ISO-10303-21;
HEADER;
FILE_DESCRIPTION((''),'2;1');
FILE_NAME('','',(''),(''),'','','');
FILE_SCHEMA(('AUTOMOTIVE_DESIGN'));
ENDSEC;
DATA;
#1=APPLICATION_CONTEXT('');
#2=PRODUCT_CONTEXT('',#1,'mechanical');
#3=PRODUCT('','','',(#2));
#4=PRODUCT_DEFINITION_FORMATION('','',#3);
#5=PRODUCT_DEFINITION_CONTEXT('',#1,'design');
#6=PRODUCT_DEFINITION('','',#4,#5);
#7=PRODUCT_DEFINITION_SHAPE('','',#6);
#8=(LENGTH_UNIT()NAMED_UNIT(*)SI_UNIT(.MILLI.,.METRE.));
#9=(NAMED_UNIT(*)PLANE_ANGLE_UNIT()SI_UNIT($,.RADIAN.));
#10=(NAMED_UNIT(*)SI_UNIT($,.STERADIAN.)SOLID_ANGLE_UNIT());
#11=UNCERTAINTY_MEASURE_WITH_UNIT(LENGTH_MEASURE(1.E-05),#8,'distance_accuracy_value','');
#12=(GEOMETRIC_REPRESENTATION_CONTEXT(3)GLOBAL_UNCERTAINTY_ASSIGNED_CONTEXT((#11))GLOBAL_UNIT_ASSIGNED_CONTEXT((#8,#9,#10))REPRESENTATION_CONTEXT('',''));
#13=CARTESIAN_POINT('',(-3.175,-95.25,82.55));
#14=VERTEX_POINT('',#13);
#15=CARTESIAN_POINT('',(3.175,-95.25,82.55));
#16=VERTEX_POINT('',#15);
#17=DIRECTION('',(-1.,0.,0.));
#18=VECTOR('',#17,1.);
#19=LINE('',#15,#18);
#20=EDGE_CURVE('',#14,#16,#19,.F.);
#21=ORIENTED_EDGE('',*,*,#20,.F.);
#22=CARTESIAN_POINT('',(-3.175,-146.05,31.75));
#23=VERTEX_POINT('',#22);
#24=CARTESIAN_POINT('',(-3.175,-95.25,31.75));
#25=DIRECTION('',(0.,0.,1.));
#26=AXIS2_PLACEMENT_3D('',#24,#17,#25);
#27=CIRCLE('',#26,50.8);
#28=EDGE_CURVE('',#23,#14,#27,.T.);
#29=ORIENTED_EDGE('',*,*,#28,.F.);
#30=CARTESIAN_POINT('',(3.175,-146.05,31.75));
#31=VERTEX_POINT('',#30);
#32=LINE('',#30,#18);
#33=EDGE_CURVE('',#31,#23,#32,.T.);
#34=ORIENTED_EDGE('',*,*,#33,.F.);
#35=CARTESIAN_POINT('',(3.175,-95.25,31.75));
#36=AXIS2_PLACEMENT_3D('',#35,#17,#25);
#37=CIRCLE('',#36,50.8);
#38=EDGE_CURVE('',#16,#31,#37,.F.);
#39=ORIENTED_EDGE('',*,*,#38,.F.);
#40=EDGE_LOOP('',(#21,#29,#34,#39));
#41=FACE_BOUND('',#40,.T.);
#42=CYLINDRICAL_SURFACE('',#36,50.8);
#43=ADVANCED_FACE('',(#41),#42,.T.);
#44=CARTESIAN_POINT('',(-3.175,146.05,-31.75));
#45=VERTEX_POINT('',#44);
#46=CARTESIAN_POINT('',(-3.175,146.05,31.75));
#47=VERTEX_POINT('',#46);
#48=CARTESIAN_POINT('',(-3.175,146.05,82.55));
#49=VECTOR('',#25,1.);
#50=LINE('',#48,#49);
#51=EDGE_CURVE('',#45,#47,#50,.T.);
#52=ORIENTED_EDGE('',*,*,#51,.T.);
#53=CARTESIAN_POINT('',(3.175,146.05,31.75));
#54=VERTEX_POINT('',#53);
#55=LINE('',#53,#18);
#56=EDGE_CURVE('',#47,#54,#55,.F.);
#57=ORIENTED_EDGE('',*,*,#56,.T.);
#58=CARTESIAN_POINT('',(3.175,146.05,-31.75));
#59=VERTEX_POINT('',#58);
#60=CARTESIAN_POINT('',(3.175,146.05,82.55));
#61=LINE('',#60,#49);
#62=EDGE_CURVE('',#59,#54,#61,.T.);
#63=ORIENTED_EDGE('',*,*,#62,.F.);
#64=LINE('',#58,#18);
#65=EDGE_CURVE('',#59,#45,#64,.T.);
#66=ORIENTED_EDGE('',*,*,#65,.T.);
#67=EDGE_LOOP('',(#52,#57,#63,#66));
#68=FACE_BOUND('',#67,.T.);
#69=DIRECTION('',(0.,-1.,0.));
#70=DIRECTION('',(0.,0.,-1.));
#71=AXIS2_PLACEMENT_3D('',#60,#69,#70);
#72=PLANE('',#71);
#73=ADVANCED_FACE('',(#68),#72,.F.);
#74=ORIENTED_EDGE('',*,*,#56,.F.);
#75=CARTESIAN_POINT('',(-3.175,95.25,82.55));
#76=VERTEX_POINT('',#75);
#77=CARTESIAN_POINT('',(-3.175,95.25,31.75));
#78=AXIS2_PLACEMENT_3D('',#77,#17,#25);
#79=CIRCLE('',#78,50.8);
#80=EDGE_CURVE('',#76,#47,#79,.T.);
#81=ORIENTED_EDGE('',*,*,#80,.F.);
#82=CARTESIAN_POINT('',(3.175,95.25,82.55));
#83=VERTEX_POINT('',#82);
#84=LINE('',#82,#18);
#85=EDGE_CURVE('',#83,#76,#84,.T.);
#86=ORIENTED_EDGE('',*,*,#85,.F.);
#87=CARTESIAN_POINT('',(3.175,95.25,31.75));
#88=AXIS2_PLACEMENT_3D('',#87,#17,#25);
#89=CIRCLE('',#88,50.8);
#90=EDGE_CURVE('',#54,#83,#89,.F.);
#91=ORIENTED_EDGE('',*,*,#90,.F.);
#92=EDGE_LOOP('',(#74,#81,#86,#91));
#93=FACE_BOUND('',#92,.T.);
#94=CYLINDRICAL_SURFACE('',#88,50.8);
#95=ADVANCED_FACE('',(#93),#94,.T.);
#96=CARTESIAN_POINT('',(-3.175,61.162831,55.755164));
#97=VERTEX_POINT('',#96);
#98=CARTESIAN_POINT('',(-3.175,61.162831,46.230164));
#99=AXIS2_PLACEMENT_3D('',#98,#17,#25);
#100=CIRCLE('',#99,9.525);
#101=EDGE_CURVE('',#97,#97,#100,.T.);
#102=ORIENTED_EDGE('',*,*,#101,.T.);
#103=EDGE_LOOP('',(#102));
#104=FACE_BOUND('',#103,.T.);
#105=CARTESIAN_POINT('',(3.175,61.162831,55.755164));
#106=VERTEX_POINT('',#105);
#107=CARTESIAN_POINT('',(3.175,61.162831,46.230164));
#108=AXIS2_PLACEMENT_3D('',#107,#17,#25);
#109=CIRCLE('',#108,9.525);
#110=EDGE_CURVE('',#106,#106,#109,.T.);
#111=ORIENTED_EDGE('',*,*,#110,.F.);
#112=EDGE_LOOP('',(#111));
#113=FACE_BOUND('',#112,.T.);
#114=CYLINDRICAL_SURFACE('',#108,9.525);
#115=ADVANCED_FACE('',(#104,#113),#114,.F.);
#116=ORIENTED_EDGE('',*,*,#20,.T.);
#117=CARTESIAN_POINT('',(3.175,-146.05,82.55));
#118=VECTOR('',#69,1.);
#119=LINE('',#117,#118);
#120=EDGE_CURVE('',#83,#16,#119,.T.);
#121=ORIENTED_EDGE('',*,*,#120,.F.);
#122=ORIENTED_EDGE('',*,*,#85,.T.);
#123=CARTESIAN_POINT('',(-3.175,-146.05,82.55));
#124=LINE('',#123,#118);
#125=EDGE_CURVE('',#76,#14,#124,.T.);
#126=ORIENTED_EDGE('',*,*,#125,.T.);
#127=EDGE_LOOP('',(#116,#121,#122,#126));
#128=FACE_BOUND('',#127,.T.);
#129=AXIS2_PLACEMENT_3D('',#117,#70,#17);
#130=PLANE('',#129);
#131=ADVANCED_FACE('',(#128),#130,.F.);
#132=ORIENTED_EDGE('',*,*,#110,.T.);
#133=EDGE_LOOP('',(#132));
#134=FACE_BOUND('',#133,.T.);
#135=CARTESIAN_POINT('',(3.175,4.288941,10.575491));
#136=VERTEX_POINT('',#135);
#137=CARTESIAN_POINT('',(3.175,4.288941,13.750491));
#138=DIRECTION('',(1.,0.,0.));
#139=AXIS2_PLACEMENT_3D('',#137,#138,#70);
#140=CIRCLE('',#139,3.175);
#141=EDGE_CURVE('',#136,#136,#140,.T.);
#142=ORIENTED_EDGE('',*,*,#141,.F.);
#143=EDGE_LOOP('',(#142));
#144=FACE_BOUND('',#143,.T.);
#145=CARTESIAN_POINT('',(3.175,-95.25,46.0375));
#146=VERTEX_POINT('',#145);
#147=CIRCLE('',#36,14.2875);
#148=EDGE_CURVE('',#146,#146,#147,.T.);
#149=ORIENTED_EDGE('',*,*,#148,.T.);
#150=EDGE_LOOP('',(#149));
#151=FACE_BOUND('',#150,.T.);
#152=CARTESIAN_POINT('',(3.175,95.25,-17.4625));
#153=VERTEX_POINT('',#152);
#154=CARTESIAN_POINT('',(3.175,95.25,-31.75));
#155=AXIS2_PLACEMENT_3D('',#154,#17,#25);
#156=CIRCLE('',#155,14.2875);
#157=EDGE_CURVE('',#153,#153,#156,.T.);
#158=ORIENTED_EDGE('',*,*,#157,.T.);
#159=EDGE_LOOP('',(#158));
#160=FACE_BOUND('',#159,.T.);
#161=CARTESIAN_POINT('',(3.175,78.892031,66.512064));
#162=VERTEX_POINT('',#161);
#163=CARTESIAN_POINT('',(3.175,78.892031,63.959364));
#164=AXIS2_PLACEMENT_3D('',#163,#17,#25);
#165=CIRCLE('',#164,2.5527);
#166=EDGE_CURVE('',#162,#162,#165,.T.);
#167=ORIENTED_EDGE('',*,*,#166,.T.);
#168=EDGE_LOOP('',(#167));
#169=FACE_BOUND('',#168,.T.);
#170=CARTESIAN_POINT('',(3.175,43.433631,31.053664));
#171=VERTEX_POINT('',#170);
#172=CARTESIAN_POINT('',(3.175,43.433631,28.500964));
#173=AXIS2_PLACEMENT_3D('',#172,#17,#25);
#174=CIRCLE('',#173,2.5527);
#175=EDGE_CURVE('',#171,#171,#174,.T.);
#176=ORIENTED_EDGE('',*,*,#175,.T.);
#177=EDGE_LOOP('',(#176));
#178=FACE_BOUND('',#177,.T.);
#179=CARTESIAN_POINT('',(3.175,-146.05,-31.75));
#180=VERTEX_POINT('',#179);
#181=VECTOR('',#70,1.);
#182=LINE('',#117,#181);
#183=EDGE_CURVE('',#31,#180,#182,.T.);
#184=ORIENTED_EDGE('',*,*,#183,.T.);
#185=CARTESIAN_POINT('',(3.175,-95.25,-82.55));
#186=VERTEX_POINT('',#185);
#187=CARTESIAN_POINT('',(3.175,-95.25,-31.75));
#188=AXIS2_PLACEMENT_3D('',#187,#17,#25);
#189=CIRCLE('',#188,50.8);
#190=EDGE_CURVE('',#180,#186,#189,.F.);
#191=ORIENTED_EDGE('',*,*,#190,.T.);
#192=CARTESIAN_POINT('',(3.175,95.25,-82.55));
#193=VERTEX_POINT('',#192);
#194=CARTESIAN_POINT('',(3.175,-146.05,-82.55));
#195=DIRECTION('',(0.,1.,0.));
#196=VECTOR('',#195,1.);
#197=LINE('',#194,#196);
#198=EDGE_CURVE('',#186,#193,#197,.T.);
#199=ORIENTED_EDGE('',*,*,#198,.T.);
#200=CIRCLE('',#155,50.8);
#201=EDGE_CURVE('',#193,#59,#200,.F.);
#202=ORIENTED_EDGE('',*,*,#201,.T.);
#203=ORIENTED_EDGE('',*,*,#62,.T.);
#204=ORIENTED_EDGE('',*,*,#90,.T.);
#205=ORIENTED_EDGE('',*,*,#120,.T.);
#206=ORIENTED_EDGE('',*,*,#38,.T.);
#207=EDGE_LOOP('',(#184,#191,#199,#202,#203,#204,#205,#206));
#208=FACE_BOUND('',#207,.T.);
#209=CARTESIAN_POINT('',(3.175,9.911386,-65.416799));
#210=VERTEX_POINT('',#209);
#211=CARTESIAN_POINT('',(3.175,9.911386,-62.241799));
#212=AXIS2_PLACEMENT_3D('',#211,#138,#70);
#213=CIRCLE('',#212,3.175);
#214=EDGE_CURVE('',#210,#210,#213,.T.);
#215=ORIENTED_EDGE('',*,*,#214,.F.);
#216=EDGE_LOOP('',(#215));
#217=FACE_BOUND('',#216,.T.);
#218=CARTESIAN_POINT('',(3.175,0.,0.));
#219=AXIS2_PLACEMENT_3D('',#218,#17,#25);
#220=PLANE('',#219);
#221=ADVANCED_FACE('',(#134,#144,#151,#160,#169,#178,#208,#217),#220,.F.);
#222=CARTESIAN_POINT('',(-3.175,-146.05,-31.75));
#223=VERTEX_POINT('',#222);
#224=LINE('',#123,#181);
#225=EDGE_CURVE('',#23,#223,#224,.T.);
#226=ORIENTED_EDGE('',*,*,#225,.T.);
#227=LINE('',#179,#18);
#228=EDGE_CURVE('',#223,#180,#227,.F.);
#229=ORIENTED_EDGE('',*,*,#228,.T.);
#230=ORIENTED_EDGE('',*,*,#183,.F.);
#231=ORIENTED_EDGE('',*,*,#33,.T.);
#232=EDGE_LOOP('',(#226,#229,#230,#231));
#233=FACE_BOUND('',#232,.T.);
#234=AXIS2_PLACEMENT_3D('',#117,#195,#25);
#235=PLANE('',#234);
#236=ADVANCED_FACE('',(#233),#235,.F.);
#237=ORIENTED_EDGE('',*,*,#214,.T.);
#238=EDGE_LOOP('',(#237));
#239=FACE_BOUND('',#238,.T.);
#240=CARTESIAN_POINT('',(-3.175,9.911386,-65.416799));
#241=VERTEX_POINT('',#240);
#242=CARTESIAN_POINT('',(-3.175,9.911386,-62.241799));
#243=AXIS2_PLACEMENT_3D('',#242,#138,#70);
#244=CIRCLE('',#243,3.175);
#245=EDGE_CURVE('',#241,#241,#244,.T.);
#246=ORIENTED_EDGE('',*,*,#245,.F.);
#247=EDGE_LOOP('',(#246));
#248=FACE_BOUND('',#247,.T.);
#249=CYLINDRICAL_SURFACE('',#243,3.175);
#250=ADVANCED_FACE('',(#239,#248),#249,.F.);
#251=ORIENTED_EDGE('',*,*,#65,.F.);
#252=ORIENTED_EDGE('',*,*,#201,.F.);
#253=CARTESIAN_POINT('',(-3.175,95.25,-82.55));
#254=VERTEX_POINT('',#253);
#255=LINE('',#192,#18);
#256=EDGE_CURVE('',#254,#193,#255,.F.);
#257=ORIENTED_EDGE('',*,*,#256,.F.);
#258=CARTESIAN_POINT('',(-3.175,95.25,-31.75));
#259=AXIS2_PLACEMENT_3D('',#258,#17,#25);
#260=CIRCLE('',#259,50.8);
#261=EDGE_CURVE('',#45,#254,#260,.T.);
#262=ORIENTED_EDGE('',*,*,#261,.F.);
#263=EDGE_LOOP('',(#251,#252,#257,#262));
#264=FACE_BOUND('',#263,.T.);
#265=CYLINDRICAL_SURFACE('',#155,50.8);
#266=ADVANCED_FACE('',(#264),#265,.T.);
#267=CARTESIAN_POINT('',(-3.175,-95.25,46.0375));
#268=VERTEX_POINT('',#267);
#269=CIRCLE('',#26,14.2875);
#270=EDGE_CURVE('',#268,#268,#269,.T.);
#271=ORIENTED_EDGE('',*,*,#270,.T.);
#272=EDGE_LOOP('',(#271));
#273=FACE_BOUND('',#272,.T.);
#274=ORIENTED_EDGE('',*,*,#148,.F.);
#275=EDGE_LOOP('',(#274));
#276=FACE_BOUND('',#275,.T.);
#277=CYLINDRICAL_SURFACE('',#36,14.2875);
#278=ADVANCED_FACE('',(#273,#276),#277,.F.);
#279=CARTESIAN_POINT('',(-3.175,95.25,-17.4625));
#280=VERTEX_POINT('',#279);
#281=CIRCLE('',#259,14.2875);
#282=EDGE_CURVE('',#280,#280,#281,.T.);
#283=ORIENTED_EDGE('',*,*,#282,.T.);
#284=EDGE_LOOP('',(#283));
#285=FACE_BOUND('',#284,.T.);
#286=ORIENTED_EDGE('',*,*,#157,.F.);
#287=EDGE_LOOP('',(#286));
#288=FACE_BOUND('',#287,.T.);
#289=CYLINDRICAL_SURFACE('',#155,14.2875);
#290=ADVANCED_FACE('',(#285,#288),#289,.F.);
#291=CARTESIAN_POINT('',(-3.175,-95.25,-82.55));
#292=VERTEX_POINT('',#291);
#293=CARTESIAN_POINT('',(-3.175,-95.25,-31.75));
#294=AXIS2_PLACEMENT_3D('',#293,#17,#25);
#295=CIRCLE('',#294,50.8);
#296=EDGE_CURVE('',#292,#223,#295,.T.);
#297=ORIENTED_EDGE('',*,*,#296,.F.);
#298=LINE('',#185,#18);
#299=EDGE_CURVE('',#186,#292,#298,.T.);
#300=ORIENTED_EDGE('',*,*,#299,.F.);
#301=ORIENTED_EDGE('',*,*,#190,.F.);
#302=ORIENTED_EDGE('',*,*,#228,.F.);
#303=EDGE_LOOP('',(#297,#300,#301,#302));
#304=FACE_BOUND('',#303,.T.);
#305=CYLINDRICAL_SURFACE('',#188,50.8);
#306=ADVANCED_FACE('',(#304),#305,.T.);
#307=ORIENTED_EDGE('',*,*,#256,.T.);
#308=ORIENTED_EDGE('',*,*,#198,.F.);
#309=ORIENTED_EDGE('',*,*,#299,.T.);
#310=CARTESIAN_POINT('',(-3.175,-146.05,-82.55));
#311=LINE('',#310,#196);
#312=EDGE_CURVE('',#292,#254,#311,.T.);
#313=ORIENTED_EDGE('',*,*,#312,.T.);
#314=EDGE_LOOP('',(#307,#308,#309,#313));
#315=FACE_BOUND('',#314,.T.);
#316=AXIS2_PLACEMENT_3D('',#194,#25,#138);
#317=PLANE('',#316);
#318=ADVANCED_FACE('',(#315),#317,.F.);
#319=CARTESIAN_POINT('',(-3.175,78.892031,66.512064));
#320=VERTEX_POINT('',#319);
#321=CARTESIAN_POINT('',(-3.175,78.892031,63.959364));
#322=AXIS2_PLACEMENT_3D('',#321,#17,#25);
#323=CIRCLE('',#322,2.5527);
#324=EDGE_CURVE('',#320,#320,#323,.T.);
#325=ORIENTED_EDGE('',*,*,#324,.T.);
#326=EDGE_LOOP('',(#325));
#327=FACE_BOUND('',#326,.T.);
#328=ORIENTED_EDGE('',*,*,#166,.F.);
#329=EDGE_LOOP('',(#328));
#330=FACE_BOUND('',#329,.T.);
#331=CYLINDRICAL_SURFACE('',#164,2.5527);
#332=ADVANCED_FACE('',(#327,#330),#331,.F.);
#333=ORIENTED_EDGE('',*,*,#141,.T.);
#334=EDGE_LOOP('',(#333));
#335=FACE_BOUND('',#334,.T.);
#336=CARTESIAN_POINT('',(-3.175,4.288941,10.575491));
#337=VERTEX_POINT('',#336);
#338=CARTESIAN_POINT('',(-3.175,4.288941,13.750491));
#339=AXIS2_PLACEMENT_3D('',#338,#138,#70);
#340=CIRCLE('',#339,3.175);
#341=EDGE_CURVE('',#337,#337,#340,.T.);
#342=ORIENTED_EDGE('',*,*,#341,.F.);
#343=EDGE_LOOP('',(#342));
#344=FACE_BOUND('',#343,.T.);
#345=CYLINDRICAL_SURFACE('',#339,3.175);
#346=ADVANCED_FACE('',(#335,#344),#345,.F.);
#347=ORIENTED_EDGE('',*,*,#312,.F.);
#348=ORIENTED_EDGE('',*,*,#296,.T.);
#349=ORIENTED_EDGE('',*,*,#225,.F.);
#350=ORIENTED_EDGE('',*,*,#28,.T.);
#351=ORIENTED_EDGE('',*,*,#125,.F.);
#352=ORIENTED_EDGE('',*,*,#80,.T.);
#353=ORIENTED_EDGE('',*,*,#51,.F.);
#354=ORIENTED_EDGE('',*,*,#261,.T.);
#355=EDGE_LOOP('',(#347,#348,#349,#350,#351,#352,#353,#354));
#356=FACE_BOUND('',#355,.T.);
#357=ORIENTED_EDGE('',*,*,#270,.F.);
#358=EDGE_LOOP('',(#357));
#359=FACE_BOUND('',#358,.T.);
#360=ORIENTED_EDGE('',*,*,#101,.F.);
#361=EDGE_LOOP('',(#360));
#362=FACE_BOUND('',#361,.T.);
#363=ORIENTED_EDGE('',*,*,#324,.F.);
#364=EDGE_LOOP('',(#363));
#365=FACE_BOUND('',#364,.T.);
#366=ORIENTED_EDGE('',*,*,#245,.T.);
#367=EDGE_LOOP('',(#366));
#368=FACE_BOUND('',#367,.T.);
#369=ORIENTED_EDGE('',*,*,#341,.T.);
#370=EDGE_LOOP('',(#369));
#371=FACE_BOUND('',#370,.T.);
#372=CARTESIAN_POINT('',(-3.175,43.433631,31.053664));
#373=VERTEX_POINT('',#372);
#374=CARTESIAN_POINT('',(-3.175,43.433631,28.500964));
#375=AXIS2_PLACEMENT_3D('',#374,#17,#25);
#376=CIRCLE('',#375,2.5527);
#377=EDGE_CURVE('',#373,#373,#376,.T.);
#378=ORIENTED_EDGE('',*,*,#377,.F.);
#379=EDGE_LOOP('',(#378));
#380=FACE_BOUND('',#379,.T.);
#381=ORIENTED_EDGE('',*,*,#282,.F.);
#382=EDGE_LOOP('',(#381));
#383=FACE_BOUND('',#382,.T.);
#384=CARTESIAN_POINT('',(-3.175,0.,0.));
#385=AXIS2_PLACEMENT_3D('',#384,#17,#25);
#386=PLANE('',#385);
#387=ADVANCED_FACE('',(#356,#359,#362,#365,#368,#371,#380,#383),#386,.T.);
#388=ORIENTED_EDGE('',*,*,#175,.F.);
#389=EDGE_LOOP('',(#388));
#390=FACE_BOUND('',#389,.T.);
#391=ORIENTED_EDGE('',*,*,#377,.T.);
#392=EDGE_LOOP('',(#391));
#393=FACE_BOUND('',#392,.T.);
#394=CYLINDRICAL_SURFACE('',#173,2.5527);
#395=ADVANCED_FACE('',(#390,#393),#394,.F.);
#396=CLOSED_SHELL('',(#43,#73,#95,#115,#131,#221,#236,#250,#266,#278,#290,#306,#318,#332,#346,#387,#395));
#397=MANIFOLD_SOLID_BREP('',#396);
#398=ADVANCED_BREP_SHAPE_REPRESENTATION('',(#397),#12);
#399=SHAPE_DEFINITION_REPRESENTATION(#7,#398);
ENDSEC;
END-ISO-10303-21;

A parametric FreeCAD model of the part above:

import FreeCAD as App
import Part
import Sketcher

V = App.Vector
Q = App.Units.Quantity


def edges_at(feature, points):
    """Names of the edges that pass closest to the given points."""
    edges = feature.Shape.Edges
    near = lambda p: min(range(len(edges)), key=lambda i: edges[i].distToShape(Part.Vertex(*p))[0])
    return sorted({f"Edge{near(p) + 1}" for p in points})

doc = App.newDocument("Part")
body = doc.addObject("PartDesign::Body", "Body")

# Sketch on YZ plane
sketch1 = body.newObject("Sketcher::SketchObject", "Sketch")
sketch1.AttachmentSupport = (doc.getObject("YZ_Plane"), [""])
sketch1.MapMode = "FlatFace"
sketch1.addGeometry([
    Part.LineSegment(V(146, 83, 0), V(-146, 83, 0)),
    Part.LineSegment(V(-146, 83, 0), V(-146, -83, 0)),
    Part.LineSegment(V(-146, -83, 0), V(146, -83, 0)),
    Part.LineSegment(V(146, -83, 0), V(146, 83, 0)),
], False)
sketch1.addConstraint([
    Sketcher.Constraint("Coincident", 0, 2, 1, 1),
    Sketcher.Constraint("Coincident", 1, 2, 2, 1),
    Sketcher.Constraint("Coincident", 2, 2, 3, 1),
    Sketcher.Constraint("Coincident", 3, 2, 0, 1),
    Sketcher.Constraint("Horizontal", 0),
    Sketcher.Constraint("Vertical", 1),
    Sketcher.Constraint("Horizontal", 2),
    Sketcher.Constraint("Vertical", 3),
    Sketcher.Constraint("Symmetric", 0, 2, 2, 2, -1, 1),
    Sketcher.Constraint("DistanceX", 0, 2, 0, 1, Q("11.5 in")),
    Sketcher.Constraint("DistanceY", 1, 2, 1, 1, Q("6.5 in")),
])
pad1 = body.newObject("PartDesign::Pad", "Pad")
pad1.Profile = sketch1
pad1.Length = Q("0.25 in")
pad1.Midplane = True
doc.recompute()

fillet = body.newObject("PartDesign::Fillet", "Fillet")
fillet.Base = (pad1, edges_at(pad1, [
    (0, -146.05, -82.55),
    (0, -146.05, 82.55),
    (0, 146.05, 82.55),
    (0, 146.05, -82.55),
]))
fillet.Radius = Q("2 in")

# Sketch on YZ plane
sketch2 = body.newObject("Sketcher::SketchObject", "Sketch001")
sketch2.AttachmentSupport = (doc.getObject("YZ_Plane"), [""])
sketch2.MapMode = "FlatFace"
sketch2.AttachmentOffset = App.Placement(V(0, 0, -0.125 * 25.4), App.Rotation())
sketch2.addGeometry([
    Part.Circle(V(-95, 32, 0), V(0, 0, 1), 14),
    Part.Circle(V(95, -32, 0), V(0, 0, 1), 14),
], False)
sketch2.addConstraint([
    Sketcher.Constraint("Equal", 0, 1),
    Sketcher.Constraint("Symmetric", 0, 3, 1, 3, -1, 1),
    Sketcher.Constraint("Diameter", 0, Q("1.125 in")),
    Sketcher.Constraint("DistanceX", 0, 3, 1, 3, Q("7.5 in")),
    Sketcher.Constraint("DistanceY", 1, 3, 0, 3, Q("2.5 in")),
])
pocket1 = body.newObject("PartDesign::Pocket", "Pocket")
pocket1.Profile = sketch2
pocket1.Type = "ThroughAll"
pocket1.Reversed = True

# Sketch on YZ plane
sketch3 = body.newObject("Sketcher::SketchObject", "Sketch002")
sketch3.AttachmentSupport = (doc.getObject("YZ_Plane"), [""])
sketch3.MapMode = "FlatFace"
sketch3.AttachmentOffset = App.Placement(V(0, 0, 0.125 * 25.4), App.Rotation())
sketch3.addGeometry([
    Part.Circle(V(9.9, -62.2, 0), V(0, 0, 1), 3.2),
    Part.Circle(V(4.3, 13.8, 0), V(0, 0, 1), 3.2),
], False)
sketch3.addConstraint([
    Sketcher.Constraint("Equal", 0, 1),
    Sketcher.Constraint("Diameter", 0, Q("0.25 in")),
    Sketcher.Constraint("DistanceY", 0, 3, -1, 1, Q("62.241799 mm")),
    Sketcher.Constraint("DistanceX", -1, 1, 1, 3, Q("4.288941 mm")),
    Sketcher.Constraint("DistanceY", -1, 1, 1, 3, Q("13.750491 mm")),
    Sketcher.Constraint("DistanceX", -1, 1, 0, 3, Q("9.911386 mm")),
])
pocket2 = body.newObject("PartDesign::Pocket", "Pocket001")
pocket2.Profile = sketch3
pocket2.Type = "ThroughAll"

# Sketch on YZ plane
sketch4 = body.newObject("Sketcher::SketchObject", "Sketch003")
sketch4.AttachmentSupport = (doc.getObject("YZ_Plane"), [""])
sketch4.MapMode = "FlatFace"
sketch4.AttachmentOffset = App.Placement(V(0, 0, -0.125 * 25.4), App.Rotation())
sketch4.addGeometry([
    Part.Circle(V(61.2, 46.2, 0), V(0, 0, 1), 9.5),
    Part.Circle(V(78.9, 64, 0), V(0, 0, 1), 2.6),
    Part.Circle(V(43.4, 28.5, 0), V(0, 0, 1), 2.6),
], False)
sketch4.addConstraint([
    Sketcher.Constraint("Equal", 1, 2),
    Sketcher.Constraint("Diameter", 0, Q("0.75 in")),
    Sketcher.Constraint("Diameter", 1, Q("0.201 in")),
    Sketcher.Constraint("DistanceX", 0, 3, 1, 3, Q("0.698 in")),
    Sketcher.Constraint("DistanceY", 0, 3, 1, 3, Q("0.698 in")),
    Sketcher.Constraint("DistanceX", 2, 3, 0, 3, Q("0.698 in")),
    Sketcher.Constraint("DistanceY", 2, 3, 0, 3, Q("0.698 in")),
    Sketcher.Constraint("DistanceX", -1, 1, 0, 3, Q("61.162831 mm")),
    Sketcher.Constraint("DistanceY", -1, 1, 0, 3, Q("46.230164 mm")),
])
pocket3 = body.newObject("PartDesign::Pocket", "Pocket002")
pocket3.Profile = sketch4
pocket3.Type = "ThroughAll"
pocket3.Reversed = True

doc.recompute()
